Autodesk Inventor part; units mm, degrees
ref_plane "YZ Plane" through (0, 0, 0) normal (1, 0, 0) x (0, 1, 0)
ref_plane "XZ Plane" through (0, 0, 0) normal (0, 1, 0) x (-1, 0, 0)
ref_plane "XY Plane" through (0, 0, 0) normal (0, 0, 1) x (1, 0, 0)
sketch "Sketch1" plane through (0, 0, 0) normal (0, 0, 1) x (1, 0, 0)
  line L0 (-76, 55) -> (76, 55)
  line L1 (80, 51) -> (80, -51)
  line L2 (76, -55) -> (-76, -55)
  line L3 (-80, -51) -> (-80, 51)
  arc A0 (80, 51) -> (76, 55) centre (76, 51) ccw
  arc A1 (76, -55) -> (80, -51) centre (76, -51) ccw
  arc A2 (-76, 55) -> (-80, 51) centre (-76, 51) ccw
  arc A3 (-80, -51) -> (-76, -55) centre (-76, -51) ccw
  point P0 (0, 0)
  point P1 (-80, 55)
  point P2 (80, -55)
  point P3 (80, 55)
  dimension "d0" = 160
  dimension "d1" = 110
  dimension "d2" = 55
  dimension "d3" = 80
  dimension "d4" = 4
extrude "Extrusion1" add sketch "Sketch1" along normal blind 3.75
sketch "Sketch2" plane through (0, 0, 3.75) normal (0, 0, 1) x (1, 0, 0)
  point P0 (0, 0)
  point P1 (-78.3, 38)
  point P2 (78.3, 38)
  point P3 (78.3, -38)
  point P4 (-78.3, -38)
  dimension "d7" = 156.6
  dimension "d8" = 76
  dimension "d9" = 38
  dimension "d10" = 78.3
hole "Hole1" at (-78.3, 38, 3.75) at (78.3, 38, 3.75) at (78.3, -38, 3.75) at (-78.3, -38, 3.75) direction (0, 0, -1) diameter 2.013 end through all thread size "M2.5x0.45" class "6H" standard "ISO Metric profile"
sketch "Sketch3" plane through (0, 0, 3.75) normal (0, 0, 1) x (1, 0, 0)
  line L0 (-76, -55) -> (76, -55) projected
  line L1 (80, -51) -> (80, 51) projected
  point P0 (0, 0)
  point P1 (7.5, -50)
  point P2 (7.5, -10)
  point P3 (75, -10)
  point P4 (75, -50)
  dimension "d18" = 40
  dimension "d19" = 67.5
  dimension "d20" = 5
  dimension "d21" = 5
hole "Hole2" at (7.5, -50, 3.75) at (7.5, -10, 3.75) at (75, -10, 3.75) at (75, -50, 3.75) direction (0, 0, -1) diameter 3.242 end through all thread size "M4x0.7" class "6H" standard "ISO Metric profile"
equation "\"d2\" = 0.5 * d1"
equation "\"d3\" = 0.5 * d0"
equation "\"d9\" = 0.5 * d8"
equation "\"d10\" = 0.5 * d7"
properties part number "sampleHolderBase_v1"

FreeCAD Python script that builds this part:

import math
import FreeCAD as App
import Part
import Sketcher
from FreeCAD import Vector

doc = App.newDocument("Part")
body = doc.addObject("PartDesign::Body", "Body")

# Sketch on XY plane
sketch1 = doc.addObject("Sketcher::SketchObject", "Sketch")
body.addObject(sketch1)
sketch1.AttachmentSupport = (doc.XY_Plane, [""])
sketch1.MapMode = "FlatFace"
sketch1.addGeometry([
    Part.LineSegment(Vector(76, 55, 0), Vector(-76, 55, 0)),  # 0
    Part.ArcOfCircle(Part.Circle(Vector(-76, 51, 0), Vector(0, 0, 1), 4), math.radians(90), math.radians(180)),  # 1
    Part.LineSegment(Vector(-80, 51, 0), Vector(-80, -51, 0)),  # 2
    Part.ArcOfCircle(Part.Circle(Vector(-76, -51, 0), Vector(0, 0, 1), 4), math.radians(180), math.radians(270)),  # 3
    Part.LineSegment(Vector(-76, -55, 0), Vector(76, -55, 0)),  # 4
    Part.ArcOfCircle(Part.Circle(Vector(76, -51, 0), Vector(0, 0, 1), 4), math.radians(-90), math.radians(0)),  # 5
    Part.LineSegment(Vector(80, -51, 0), Vector(80, 51, 0)),  # 6
    Part.ArcOfCircle(Part.Circle(Vector(76, 51, 0), Vector(0, 0, 1), 4), math.radians(0), math.radians(90)),  # 7
], False)
sketch1.addConstraint([
    Sketcher.Constraint("Tangent", 0, 2, 1, 1),
    Sketcher.Constraint("Tangent", 1, 2, 2, 1),
    Sketcher.Constraint("Tangent", 2, 2, 3, 1),
    Sketcher.Constraint("Tangent", 3, 2, 4, 1),
    Sketcher.Constraint("Tangent", 4, 2, 5, 1),
    Sketcher.Constraint("Tangent", 5, 2, 6, 1),
    Sketcher.Constraint("Tangent", 6, 2, 7, 1),
    Sketcher.Constraint("Tangent", 7, 2, 0, 1),
    Sketcher.Constraint("Horizontal", 0),
    Sketcher.Constraint("Vertical", 2),
    Sketcher.Constraint("Horizontal", 4),
    Sketcher.Constraint("Vertical", 6),
    Sketcher.Constraint("Equal", 1, 3),
    Sketcher.Constraint("Equal", 3, 5),
    Sketcher.Constraint("Equal", 5, 7),
    Sketcher.Constraint("Symmetric", 1, 3, 5, 3, -1, 1),
    Sketcher.Constraint("Radius", 1, 4.0),
    Sketcher.Constraint("DistanceY", -1, 1, 0, 2, 55.0),
    Sketcher.Constraint("DistanceX", 1, 2, -1, 1, 80.0),
])
pad1 = doc.addObject("PartDesign::Pad", "Pad")
body.addObject(pad1)
pad1.Profile = sketch1
pad1.Length = 3.75

# Sketch on XY plane
sketch2 = doc.addObject("Sketcher::SketchObject", "Sketch001")
body.addObject(sketch2)
sketch2.AttachmentSupport = (doc.XY_Plane, [""])
sketch2.MapMode = "FlatFace"
sketch2.AttachmentOffset = App.Placement(Vector(0, 0, 3.75), App.Rotation())
sketch2.addGeometry([
    Part.Circle(Vector(-78.3, 38, 0), Vector(0, 0, 1), 1),
    Part.Circle(Vector(78.3, 38, 0), Vector(0, 0, 1), 1),
    Part.Circle(Vector(78.3, -38, 0), Vector(0, 0, 1), 1),
    Part.Circle(Vector(-78.3, -38, 0), Vector(0, 0, 1), 1),
], False)
sketch2.addConstraint([
    Sketcher.Constraint("Equal", 0, 1),
    Sketcher.Constraint("Equal", 1, 2),
    Sketcher.Constraint("Equal", 2, 3),
    Sketcher.Constraint("Symmetric", 0, 3, 2, 3, -1, 1),
    Sketcher.Constraint("Symmetric", 1, 3, 3, 3, -1, 1),
    Sketcher.Constraint("Symmetric", 0, 3, 1, 3, -2),
    Sketcher.Constraint("Diameter", 0, 2.013),
    Sketcher.Constraint("DistanceY", -1, 1, 0, 3, 38.0),
    Sketcher.Constraint("DistanceX", 0, 3, -1, 1, 78.3),
])
doc.recompute()
hole = doc.addObject("PartDesign::Hole", "Hole")
body.addObject(hole)
hole.Profile = sketch2
hole.ThreadType = "None"
hole.Diameter = 2.013
hole.DepthType = "ThroughAll"

# Sketch on XY plane
sketch3 = doc.addObject("Sketcher::SketchObject", "Sketch002")
body.addObject(sketch3)
sketch3.AttachmentSupport = (doc.XY_Plane, [""])
sketch3.MapMode = "FlatFace"
sketch3.AttachmentOffset = App.Placement(Vector(0, 0, 3.75), App.Rotation())
sketch3.addGeometry([
    Part.Circle(Vector(7.5, -50, 0), Vector(0, 0, 1), 1.6),
    Part.Circle(Vector(7.5, -10, 0), Vector(0, 0, 1), 1.6),
    Part.Circle(Vector(75, -10, 0), Vector(0, 0, 1), 1.6),
    Part.Circle(Vector(75, -50, 0), Vector(0, 0, 1), 1.6),
], False)
sketch3.addConstraint([
    Sketcher.Constraint("Equal", 0, 1),
    Sketcher.Constraint("Equal", 1, 2),
    Sketcher.Constraint("Equal", 2, 3),
    Sketcher.Constraint("Horizontal", 1, 3, 2, 3),
    Sketcher.Constraint("Horizontal", 0, 3, 3, 3),
    Sketcher.Constraint("Vertical", 0, 3, 1, 3),
    Sketcher.Constraint("Vertical", 2, 3, 3, 3),
    Sketcher.Constraint("Diameter", 0, 3.242),
    Sketcher.Constraint("DistanceY", 0, 3, -1, 1, 50.0),
    Sketcher.Constraint("DistanceY", 1, 3, -1, 1, 10.0),
    Sketcher.Constraint("DistanceX", -1, 1, 2, 3, 75.0),
    Sketcher.Constraint("DistanceX", -1, 1, 0, 3, 7.5),
])
doc.recompute()
hole2 = doc.addObject("PartDesign::Hole", "Hole001")
body.addObject(hole2)
hole2.Profile = sketch3
hole2.ThreadType = "None"
hole2.Diameter = 3.242
hole2.DepthType = "ThroughAll"

doc.recompute()
